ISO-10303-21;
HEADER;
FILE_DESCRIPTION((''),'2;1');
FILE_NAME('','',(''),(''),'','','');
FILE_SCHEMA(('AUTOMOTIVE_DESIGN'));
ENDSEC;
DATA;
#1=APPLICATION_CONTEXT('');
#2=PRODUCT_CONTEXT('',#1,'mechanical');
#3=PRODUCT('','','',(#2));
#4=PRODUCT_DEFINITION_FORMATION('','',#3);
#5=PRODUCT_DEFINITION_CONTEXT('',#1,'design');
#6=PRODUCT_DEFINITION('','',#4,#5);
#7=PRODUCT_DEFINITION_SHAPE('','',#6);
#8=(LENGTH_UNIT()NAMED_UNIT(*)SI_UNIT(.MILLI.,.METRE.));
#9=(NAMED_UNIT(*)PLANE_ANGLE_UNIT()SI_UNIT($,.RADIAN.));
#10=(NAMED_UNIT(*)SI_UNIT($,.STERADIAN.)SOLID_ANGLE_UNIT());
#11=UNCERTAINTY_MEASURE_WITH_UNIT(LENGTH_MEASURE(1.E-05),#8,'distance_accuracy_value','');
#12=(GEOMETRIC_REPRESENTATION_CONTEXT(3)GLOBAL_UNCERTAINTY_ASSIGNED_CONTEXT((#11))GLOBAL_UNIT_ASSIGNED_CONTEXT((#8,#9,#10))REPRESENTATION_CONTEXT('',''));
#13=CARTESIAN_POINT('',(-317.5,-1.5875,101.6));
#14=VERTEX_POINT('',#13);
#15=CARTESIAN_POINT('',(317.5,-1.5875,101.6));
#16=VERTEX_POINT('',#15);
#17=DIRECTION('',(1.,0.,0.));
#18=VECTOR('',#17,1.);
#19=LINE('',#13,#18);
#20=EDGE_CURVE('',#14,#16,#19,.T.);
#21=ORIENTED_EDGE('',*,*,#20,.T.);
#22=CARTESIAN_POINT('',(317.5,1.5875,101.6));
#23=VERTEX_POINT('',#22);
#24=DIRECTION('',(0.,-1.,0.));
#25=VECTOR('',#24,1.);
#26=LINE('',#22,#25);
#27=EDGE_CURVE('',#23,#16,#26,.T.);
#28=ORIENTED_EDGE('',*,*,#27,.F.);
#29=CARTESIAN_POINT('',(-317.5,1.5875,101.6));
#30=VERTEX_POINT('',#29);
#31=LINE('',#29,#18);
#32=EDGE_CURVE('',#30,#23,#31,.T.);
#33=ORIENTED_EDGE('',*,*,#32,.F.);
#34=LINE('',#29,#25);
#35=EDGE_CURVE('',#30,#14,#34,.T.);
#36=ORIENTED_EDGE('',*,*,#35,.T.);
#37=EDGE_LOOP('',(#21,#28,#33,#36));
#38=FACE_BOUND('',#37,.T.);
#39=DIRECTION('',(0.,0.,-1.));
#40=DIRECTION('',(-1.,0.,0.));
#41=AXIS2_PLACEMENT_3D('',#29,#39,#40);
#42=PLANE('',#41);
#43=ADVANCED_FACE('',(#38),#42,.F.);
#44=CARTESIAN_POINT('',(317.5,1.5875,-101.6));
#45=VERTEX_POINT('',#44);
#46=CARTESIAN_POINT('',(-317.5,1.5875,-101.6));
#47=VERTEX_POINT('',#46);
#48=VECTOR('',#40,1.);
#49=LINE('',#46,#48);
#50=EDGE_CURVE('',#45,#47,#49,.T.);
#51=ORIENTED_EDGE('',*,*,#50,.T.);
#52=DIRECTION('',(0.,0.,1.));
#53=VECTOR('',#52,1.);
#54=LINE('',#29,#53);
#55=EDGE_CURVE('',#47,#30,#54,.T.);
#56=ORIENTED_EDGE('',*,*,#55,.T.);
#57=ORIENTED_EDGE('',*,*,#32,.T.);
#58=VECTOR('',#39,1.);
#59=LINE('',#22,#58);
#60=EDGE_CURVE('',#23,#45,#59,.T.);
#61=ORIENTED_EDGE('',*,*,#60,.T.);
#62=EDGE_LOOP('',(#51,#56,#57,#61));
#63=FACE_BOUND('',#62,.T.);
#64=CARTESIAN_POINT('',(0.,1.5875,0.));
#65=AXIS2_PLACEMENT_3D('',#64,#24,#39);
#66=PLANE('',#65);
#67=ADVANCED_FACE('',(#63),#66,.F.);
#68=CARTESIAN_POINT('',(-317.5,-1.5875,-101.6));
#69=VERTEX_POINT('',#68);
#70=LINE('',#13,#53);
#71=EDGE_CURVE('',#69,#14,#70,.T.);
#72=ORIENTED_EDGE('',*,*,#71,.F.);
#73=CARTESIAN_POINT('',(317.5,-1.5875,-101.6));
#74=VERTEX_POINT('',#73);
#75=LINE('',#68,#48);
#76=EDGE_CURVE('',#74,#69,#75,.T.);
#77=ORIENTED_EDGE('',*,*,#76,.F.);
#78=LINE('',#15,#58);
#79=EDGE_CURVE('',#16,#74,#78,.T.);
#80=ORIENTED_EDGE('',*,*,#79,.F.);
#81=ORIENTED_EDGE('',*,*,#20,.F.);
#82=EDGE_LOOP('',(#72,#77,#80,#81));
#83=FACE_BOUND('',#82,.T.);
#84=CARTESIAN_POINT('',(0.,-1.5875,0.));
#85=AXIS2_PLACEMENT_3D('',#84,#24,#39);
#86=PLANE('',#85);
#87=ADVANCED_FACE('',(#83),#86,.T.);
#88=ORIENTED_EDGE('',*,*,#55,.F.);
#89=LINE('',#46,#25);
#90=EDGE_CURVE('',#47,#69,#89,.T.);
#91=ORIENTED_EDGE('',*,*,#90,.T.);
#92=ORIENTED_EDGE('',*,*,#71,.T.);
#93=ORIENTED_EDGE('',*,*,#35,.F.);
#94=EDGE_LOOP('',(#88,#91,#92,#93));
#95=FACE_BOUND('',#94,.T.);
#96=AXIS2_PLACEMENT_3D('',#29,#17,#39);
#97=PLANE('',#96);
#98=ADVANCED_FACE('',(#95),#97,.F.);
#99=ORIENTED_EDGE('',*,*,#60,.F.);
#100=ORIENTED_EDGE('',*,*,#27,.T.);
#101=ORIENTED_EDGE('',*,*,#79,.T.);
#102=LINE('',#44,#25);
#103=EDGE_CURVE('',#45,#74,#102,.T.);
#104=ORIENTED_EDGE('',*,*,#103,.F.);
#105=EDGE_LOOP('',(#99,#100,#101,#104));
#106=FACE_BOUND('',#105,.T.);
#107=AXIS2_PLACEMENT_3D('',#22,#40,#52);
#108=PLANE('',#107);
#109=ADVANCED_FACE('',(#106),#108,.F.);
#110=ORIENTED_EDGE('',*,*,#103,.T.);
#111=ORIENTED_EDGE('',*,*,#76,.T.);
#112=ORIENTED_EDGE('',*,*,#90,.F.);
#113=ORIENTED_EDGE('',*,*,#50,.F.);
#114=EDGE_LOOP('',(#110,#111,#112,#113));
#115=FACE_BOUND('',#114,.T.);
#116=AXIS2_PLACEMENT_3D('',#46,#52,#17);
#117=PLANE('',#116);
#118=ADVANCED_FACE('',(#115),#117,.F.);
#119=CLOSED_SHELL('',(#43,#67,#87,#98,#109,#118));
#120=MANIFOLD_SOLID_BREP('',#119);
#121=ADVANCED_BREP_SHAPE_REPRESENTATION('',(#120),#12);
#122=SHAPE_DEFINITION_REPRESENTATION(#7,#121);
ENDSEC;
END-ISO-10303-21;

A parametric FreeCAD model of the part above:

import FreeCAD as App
import Part
import Sketcher

V = App.Vector
Q = App.Units.Quantity


def add_polygon(sketch, points):
    """Adds a closed chain of lines whose ends are joined by coincident constraints."""
    first, n = sketch.GeometryCount, len(points)
    for a, b in zip(points, points[1:] + points[:1]):
        sketch.addGeometry(Part.LineSegment(App.Vector(*a, 0), App.Vector(*b, 0)), False)
    for i in range(n):
        sketch.addConstraint(Sketcher.Constraint("Coincident", first + i, 2, first + (i + 1) % n, 1))

doc = App.newDocument("Part")
body = doc.addObject("PartDesign::Body", "Body")

sketch1 = body.newObject("Sketcher::SketchObject", "Sketch")
sketch1.AttachmentSupport = (doc.getObject("XZ_Plane"), [""])
sketch1.MapMode = "FlatFace"
add_polygon(sketch1, [(-318, -102), (-318, 102), (318, 102), (318, -102)])
sketch1.addConstraint(Sketcher.Constraint("Vertical", 0))
sketch1.addConstraint(Sketcher.Constraint("Horizontal", 1))
sketch1.addConstraint(Sketcher.Constraint("Vertical", 2))
sketch1.addConstraint(Sketcher.Constraint("Horizontal", 3))
sketch1.addConstraint(Sketcher.Constraint("Symmetric", 0, 2, 2, 2, -1, 1))
sketch1.addConstraint(Sketcher.Constraint("DistanceX", 1, 1, 1, 2, Q("25 in")))
sketch1.addConstraint(Sketcher.Constraint("DistanceY", 0, 1, 0, 2, Q("8 in")))
pad1 = body.newObject("PartDesign::Pad", "Pad")
pad1.Profile = sketch1
pad1.Length = Q("0.125 in")
pad1.Midplane = True

doc.recompute()
